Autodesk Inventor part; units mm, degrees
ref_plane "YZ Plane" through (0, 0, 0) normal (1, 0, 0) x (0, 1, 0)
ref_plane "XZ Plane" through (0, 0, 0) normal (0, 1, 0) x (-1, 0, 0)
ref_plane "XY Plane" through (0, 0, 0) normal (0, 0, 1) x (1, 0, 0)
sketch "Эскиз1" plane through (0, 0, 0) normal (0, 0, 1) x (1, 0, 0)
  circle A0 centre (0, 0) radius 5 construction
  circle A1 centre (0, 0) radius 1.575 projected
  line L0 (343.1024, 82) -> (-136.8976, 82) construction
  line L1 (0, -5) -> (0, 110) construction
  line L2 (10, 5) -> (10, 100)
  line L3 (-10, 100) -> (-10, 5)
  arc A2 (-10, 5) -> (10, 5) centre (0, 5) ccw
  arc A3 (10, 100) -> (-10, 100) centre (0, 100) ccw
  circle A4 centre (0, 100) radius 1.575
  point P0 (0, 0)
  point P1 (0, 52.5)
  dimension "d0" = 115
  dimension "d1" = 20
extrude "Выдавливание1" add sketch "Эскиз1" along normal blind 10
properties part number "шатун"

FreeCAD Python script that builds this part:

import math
import FreeCAD as App
import Part
import Sketcher

doc = App.newDocument("Part")
params = doc.addObject("Spreadsheet::Sheet", "Params")
for row, (alias, value) in enumerate([
    ("sketch1_radius", "10 mm"),
    ("sketch1_diameter", "3.15 mm"),
    ("sketch1_height", "95 mm"),
    ("pad1_length", "10 mm"),
], start=1):
    params.set(f"A{row}", alias)
    params.set(f"B{row}", "=" + value)
    params.setAlias(f"B{row}", alias)

body = doc.addObject("PartDesign::Body", "Body")

sketch1 = body.newObject("Sketcher::SketchObject", "Sketch")
sketch1.AttachmentSupport = (doc.getObject("XY_Plane"), [""])
sketch1.MapMode = "FlatFace"
sketch1.addGeometry([
    Part.ArcOfCircle(Part.Circle(App.Vector(0, 5, 0), App.Vector(0, 0, 1), 10), math.radians(180), math.radians(360)),
    Part.LineSegment(App.Vector(10, 5, 0), App.Vector(10, 100, 0)),
    Part.ArcOfCircle(Part.Circle(App.Vector(0, 100, 0), App.Vector(0, 0, 1), 10), math.radians(0), math.radians(180)),
    Part.LineSegment(App.Vector(-10, 100, 0), App.Vector(-10, 5, 0)),
    Part.Circle(App.Vector(0, 0, 0), App.Vector(0, 0, 1), 1.575),
    Part.Circle(App.Vector(0, 100, 0), App.Vector(0, 0, 1), 1.575),
], False)
sketch1.addConstraint([
    Sketcher.Constraint("Tangent", 0, 2, 1, 1),
    Sketcher.Constraint("Tangent", 1, 2, 2, 1),
    Sketcher.Constraint("Tangent", 2, 2, 3, 1),
    Sketcher.Constraint("Tangent", 3, 2, 0, 1),
    Sketcher.Constraint("Vertical", 1),
    Sketcher.Constraint("Vertical", 3),
    Sketcher.Constraint("Coincident", 4, 3, -1, 1),
    Sketcher.Constraint("Coincident", 5, 3, 2, 3),
    Sketcher.Constraint("Equal", 4, 5),
    Sketcher.Constraint("PointOnObject", 0, 3, -2),
    Sketcher.Constraint("Radius", 0, 10.0),
    Sketcher.Constraint("Diameter", 4, 3.15),
    Sketcher.Constraint("DistanceY", 1, 1, 1, 2, 95.0),
    Sketcher.Constraint("DistanceY", -1, 1, 0, 3, 5.0),
])
sketch1.setExpression("Constraints[10]", "Params.sketch1_radius")
sketch1.setExpression("Constraints[11]", "Params.sketch1_diameter")
sketch1.setExpression("Constraints[12]", "Params.sketch1_height")
pad1 = body.newObject("PartDesign::Pad", "Pad")
pad1.Profile = sketch1
pad1.setExpression("Length", "Params.pad1_length")

doc.recompute()
